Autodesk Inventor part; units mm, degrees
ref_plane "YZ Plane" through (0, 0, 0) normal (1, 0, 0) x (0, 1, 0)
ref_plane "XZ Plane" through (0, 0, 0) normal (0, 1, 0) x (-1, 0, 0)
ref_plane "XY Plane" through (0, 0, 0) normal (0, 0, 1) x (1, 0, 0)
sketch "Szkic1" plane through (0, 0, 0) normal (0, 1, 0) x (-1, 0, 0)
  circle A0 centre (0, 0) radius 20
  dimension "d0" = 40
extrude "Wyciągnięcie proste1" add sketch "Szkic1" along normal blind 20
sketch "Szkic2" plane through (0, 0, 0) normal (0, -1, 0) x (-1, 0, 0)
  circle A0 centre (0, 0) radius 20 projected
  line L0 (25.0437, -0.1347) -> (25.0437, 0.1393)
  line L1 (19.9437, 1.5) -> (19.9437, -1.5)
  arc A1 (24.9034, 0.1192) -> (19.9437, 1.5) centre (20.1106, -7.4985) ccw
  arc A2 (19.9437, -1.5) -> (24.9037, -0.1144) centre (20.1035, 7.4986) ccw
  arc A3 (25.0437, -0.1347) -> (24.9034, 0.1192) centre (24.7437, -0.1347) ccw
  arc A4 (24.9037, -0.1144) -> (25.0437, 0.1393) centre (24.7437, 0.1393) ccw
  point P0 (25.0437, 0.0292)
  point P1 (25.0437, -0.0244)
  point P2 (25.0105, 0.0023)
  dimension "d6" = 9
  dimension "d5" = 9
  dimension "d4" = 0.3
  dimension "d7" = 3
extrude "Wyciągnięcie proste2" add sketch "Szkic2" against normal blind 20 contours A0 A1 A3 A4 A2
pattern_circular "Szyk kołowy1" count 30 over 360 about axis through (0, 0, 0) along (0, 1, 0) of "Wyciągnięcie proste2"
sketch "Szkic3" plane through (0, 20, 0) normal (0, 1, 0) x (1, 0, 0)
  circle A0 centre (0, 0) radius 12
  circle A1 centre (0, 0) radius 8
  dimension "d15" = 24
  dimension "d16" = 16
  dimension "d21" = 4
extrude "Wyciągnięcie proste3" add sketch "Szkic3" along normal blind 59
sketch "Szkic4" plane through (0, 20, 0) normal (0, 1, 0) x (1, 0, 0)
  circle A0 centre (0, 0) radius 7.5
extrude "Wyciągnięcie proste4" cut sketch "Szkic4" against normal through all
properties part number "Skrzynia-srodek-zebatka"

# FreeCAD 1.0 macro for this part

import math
import FreeCAD as App
import Part
import Sketcher

doc = App.newDocument("Part")
body = doc.addObject("PartDesign::Body", "Body")

# Sketch on XZ plane
sketch1 = body.newObject("Sketcher::SketchObject", "Sketch")
sketch1.AttachmentSupport = (doc.getObject("XZ_Plane"), [""])
sketch1.MapMode = "FlatFace"
sketch1.addGeometry(Part.Circle(App.Vector(0, 0, 0), App.Vector(0, 0, 1), 20), False)
sketch1.addConstraint(Sketcher.Constraint("Coincident", 0, 3, -1, 1))
sketch1.addConstraint(Sketcher.Constraint("Diameter", 0, 40.0))
pad1 = body.newObject("PartDesign::Pad", "Pad")
pad1.Profile = sketch1
pad1.Length = 20
pad1.Reversed = True

# Sketch on XZ plane
sketch2 = body.newObject("Sketcher::SketchObject", "Sketch001")
sketch2.AttachmentSupport = (doc.getObject("XZ_Plane"), [""])
sketch2.MapMode = "FlatFace"
sketch2.addGeometry(Part.ArcOfCircle(Part.Circle(App.Vector(0, 0, 0), App.Vector(0, 0, 1), 20), math.radians(175.7), math.radians(184.3)), False)
sketch2.addGeometry(Part.ArcOfCircle(Part.Circle(App.Vector(-20.1, -7.5, 0), App.Vector(0, 0, 1), 9), math.radians(89), math.radians(122)), False)
sketch2.addGeometry(Part.ArcOfCircle(Part.Circle(App.Vector(-24.74, -0.14, 0), App.Vector(0, 0, 1), 0.3), math.radians(122), math.radians(153)), False)
sketch2.addGeometry(Part.ArcOfCircle(Part.Circle(App.Vector(-24.74, 0.13, 0), App.Vector(0, 0, 1), 0.3), math.radians(-153), math.radians(-122)), False)
sketch2.addGeometry(Part.ArcOfCircle(Part.Circle(App.Vector(-20.11, 7.5, 0), App.Vector(0, 0, 1), 9), math.radians(-122), math.radians(-89)), False)
sketch2.addConstraint(Sketcher.Constraint("Coincident", 0, 1, 1, 1))
sketch2.addConstraint(Sketcher.Constraint("Tangent", 1, 2, 2, 1))
sketch2.addConstraint(Sketcher.Constraint("Coincident", 2, 2, 3, 1))
sketch2.addConstraint(Sketcher.Constraint("Tangent", 3, 2, 4, 1))
sketch2.addConstraint(Sketcher.Constraint("Coincident", 4, 2, 0, 2))
sketch2.addConstraint(Sketcher.Constraint("Coincident", 0, 3, -1, 1))
sketch2.addConstraint(Sketcher.Constraint("Equal", 2, 3))
sketch2.addConstraint(Sketcher.Constraint("Equal", 1, 4))
sketch2.addConstraint(Sketcher.Constraint("Vertical", 2, 3, 3, 3))
sketch2.addConstraint(Sketcher.Constraint("Vertical", 0, 1, 4, 2))
sketch2.addConstraint(Sketcher.Constraint("Radius", 1, 9.0))
sketch2.addConstraint(Sketcher.Constraint("Radius", 2, 0.3))
sketch2.addConstraint(Sketcher.Constraint("Radius", 0, 20.0))
sketch2.addConstraint(Sketcher.Constraint("DistanceY", 4, 2, 0, 1, 3.0))
sketch2.addConstraint(Sketcher.Constraint("DistanceX", 3, 3, 0, 1, 4.8))
sketch2.addConstraint(Sketcher.Constraint("DistanceX", 2, 2, 4, 3, 4.9))
sketch2.addConstraint(Sketcher.Constraint("DistanceY", 2, 3, 3, 2, 0.02))
pad2 = body.newObject("PartDesign::Pad", "Pad001")
pad2.Profile = sketch2
pad2.Length = 20
pad2.Reversed = True
doc.recompute()

polarpattern = body.newObject("PartDesign::PolarPattern", "PolarPattern")
polarpattern.Originals = [pad2]
polarpattern.Axis = (doc.getObject("Y_Axis"), [""])
polarpattern.Angle = 360
polarpattern.Occurrences = 30
body.Tip = polarpattern

# Sketch on XZ plane
sketch3 = body.newObject("Sketcher::SketchObject", "Sketch002")
sketch3.AttachmentSupport = (doc.getObject("XZ_Plane"), [""])
sketch3.MapMode = "FlatFace"
sketch3.AttachmentOffset = App.Placement(App.Vector(0, 0, -20), App.Rotation())
sketch3.addGeometry(Part.Circle(App.Vector(0, 0, 0), App.Vector(0, 0, 1), 12), False)
sketch3.addGeometry(Part.Circle(App.Vector(0, 0, 0), App.Vector(0, 0, 1), 8), False)
sketch3.addConstraint(Sketcher.Constraint("Coincident", 0, 3, -1, 1))
sketch3.addConstraint(Sketcher.Constraint("Coincident", 1, 3, -1, 1))
sketch3.addConstraint(Sketcher.Constraint("Diameter", 0, 24.0))
sketch3.addConstraint(Sketcher.Constraint("Diameter", 1, 16.0))
pad3 = body.newObject("PartDesign::Pad", "Pad002")
pad3.Profile = sketch3
pad3.Length = 59
pad3.Reversed = True

# Sketch on XZ plane
sketch4 = body.newObject("Sketcher::SketchObject", "Sketch003")
sketch4.AttachmentSupport = (doc.getObject("XZ_Plane"), [""])
sketch4.MapMode = "FlatFace"
sketch4.AttachmentOffset = App.Placement(App.Vector(0, 0, -20), App.Rotation())
sketch4.addGeometry(Part.Circle(App.Vector(0, 0, 0), App.Vector(0, 0, 1), 8), False)
sketch4.addConstraint(Sketcher.Constraint("Coincident", 0, 3, -1, 1))
sketch4.addConstraint(Sketcher.Constraint("Diameter", 0, 15.0))
pocket1 = body.newObject("PartDesign::Pocket", "Pocket")
pocket1.Profile = sketch4
pocket1.Type = "ThroughAll"
pocket1.Reversed = True

doc.recompute()
